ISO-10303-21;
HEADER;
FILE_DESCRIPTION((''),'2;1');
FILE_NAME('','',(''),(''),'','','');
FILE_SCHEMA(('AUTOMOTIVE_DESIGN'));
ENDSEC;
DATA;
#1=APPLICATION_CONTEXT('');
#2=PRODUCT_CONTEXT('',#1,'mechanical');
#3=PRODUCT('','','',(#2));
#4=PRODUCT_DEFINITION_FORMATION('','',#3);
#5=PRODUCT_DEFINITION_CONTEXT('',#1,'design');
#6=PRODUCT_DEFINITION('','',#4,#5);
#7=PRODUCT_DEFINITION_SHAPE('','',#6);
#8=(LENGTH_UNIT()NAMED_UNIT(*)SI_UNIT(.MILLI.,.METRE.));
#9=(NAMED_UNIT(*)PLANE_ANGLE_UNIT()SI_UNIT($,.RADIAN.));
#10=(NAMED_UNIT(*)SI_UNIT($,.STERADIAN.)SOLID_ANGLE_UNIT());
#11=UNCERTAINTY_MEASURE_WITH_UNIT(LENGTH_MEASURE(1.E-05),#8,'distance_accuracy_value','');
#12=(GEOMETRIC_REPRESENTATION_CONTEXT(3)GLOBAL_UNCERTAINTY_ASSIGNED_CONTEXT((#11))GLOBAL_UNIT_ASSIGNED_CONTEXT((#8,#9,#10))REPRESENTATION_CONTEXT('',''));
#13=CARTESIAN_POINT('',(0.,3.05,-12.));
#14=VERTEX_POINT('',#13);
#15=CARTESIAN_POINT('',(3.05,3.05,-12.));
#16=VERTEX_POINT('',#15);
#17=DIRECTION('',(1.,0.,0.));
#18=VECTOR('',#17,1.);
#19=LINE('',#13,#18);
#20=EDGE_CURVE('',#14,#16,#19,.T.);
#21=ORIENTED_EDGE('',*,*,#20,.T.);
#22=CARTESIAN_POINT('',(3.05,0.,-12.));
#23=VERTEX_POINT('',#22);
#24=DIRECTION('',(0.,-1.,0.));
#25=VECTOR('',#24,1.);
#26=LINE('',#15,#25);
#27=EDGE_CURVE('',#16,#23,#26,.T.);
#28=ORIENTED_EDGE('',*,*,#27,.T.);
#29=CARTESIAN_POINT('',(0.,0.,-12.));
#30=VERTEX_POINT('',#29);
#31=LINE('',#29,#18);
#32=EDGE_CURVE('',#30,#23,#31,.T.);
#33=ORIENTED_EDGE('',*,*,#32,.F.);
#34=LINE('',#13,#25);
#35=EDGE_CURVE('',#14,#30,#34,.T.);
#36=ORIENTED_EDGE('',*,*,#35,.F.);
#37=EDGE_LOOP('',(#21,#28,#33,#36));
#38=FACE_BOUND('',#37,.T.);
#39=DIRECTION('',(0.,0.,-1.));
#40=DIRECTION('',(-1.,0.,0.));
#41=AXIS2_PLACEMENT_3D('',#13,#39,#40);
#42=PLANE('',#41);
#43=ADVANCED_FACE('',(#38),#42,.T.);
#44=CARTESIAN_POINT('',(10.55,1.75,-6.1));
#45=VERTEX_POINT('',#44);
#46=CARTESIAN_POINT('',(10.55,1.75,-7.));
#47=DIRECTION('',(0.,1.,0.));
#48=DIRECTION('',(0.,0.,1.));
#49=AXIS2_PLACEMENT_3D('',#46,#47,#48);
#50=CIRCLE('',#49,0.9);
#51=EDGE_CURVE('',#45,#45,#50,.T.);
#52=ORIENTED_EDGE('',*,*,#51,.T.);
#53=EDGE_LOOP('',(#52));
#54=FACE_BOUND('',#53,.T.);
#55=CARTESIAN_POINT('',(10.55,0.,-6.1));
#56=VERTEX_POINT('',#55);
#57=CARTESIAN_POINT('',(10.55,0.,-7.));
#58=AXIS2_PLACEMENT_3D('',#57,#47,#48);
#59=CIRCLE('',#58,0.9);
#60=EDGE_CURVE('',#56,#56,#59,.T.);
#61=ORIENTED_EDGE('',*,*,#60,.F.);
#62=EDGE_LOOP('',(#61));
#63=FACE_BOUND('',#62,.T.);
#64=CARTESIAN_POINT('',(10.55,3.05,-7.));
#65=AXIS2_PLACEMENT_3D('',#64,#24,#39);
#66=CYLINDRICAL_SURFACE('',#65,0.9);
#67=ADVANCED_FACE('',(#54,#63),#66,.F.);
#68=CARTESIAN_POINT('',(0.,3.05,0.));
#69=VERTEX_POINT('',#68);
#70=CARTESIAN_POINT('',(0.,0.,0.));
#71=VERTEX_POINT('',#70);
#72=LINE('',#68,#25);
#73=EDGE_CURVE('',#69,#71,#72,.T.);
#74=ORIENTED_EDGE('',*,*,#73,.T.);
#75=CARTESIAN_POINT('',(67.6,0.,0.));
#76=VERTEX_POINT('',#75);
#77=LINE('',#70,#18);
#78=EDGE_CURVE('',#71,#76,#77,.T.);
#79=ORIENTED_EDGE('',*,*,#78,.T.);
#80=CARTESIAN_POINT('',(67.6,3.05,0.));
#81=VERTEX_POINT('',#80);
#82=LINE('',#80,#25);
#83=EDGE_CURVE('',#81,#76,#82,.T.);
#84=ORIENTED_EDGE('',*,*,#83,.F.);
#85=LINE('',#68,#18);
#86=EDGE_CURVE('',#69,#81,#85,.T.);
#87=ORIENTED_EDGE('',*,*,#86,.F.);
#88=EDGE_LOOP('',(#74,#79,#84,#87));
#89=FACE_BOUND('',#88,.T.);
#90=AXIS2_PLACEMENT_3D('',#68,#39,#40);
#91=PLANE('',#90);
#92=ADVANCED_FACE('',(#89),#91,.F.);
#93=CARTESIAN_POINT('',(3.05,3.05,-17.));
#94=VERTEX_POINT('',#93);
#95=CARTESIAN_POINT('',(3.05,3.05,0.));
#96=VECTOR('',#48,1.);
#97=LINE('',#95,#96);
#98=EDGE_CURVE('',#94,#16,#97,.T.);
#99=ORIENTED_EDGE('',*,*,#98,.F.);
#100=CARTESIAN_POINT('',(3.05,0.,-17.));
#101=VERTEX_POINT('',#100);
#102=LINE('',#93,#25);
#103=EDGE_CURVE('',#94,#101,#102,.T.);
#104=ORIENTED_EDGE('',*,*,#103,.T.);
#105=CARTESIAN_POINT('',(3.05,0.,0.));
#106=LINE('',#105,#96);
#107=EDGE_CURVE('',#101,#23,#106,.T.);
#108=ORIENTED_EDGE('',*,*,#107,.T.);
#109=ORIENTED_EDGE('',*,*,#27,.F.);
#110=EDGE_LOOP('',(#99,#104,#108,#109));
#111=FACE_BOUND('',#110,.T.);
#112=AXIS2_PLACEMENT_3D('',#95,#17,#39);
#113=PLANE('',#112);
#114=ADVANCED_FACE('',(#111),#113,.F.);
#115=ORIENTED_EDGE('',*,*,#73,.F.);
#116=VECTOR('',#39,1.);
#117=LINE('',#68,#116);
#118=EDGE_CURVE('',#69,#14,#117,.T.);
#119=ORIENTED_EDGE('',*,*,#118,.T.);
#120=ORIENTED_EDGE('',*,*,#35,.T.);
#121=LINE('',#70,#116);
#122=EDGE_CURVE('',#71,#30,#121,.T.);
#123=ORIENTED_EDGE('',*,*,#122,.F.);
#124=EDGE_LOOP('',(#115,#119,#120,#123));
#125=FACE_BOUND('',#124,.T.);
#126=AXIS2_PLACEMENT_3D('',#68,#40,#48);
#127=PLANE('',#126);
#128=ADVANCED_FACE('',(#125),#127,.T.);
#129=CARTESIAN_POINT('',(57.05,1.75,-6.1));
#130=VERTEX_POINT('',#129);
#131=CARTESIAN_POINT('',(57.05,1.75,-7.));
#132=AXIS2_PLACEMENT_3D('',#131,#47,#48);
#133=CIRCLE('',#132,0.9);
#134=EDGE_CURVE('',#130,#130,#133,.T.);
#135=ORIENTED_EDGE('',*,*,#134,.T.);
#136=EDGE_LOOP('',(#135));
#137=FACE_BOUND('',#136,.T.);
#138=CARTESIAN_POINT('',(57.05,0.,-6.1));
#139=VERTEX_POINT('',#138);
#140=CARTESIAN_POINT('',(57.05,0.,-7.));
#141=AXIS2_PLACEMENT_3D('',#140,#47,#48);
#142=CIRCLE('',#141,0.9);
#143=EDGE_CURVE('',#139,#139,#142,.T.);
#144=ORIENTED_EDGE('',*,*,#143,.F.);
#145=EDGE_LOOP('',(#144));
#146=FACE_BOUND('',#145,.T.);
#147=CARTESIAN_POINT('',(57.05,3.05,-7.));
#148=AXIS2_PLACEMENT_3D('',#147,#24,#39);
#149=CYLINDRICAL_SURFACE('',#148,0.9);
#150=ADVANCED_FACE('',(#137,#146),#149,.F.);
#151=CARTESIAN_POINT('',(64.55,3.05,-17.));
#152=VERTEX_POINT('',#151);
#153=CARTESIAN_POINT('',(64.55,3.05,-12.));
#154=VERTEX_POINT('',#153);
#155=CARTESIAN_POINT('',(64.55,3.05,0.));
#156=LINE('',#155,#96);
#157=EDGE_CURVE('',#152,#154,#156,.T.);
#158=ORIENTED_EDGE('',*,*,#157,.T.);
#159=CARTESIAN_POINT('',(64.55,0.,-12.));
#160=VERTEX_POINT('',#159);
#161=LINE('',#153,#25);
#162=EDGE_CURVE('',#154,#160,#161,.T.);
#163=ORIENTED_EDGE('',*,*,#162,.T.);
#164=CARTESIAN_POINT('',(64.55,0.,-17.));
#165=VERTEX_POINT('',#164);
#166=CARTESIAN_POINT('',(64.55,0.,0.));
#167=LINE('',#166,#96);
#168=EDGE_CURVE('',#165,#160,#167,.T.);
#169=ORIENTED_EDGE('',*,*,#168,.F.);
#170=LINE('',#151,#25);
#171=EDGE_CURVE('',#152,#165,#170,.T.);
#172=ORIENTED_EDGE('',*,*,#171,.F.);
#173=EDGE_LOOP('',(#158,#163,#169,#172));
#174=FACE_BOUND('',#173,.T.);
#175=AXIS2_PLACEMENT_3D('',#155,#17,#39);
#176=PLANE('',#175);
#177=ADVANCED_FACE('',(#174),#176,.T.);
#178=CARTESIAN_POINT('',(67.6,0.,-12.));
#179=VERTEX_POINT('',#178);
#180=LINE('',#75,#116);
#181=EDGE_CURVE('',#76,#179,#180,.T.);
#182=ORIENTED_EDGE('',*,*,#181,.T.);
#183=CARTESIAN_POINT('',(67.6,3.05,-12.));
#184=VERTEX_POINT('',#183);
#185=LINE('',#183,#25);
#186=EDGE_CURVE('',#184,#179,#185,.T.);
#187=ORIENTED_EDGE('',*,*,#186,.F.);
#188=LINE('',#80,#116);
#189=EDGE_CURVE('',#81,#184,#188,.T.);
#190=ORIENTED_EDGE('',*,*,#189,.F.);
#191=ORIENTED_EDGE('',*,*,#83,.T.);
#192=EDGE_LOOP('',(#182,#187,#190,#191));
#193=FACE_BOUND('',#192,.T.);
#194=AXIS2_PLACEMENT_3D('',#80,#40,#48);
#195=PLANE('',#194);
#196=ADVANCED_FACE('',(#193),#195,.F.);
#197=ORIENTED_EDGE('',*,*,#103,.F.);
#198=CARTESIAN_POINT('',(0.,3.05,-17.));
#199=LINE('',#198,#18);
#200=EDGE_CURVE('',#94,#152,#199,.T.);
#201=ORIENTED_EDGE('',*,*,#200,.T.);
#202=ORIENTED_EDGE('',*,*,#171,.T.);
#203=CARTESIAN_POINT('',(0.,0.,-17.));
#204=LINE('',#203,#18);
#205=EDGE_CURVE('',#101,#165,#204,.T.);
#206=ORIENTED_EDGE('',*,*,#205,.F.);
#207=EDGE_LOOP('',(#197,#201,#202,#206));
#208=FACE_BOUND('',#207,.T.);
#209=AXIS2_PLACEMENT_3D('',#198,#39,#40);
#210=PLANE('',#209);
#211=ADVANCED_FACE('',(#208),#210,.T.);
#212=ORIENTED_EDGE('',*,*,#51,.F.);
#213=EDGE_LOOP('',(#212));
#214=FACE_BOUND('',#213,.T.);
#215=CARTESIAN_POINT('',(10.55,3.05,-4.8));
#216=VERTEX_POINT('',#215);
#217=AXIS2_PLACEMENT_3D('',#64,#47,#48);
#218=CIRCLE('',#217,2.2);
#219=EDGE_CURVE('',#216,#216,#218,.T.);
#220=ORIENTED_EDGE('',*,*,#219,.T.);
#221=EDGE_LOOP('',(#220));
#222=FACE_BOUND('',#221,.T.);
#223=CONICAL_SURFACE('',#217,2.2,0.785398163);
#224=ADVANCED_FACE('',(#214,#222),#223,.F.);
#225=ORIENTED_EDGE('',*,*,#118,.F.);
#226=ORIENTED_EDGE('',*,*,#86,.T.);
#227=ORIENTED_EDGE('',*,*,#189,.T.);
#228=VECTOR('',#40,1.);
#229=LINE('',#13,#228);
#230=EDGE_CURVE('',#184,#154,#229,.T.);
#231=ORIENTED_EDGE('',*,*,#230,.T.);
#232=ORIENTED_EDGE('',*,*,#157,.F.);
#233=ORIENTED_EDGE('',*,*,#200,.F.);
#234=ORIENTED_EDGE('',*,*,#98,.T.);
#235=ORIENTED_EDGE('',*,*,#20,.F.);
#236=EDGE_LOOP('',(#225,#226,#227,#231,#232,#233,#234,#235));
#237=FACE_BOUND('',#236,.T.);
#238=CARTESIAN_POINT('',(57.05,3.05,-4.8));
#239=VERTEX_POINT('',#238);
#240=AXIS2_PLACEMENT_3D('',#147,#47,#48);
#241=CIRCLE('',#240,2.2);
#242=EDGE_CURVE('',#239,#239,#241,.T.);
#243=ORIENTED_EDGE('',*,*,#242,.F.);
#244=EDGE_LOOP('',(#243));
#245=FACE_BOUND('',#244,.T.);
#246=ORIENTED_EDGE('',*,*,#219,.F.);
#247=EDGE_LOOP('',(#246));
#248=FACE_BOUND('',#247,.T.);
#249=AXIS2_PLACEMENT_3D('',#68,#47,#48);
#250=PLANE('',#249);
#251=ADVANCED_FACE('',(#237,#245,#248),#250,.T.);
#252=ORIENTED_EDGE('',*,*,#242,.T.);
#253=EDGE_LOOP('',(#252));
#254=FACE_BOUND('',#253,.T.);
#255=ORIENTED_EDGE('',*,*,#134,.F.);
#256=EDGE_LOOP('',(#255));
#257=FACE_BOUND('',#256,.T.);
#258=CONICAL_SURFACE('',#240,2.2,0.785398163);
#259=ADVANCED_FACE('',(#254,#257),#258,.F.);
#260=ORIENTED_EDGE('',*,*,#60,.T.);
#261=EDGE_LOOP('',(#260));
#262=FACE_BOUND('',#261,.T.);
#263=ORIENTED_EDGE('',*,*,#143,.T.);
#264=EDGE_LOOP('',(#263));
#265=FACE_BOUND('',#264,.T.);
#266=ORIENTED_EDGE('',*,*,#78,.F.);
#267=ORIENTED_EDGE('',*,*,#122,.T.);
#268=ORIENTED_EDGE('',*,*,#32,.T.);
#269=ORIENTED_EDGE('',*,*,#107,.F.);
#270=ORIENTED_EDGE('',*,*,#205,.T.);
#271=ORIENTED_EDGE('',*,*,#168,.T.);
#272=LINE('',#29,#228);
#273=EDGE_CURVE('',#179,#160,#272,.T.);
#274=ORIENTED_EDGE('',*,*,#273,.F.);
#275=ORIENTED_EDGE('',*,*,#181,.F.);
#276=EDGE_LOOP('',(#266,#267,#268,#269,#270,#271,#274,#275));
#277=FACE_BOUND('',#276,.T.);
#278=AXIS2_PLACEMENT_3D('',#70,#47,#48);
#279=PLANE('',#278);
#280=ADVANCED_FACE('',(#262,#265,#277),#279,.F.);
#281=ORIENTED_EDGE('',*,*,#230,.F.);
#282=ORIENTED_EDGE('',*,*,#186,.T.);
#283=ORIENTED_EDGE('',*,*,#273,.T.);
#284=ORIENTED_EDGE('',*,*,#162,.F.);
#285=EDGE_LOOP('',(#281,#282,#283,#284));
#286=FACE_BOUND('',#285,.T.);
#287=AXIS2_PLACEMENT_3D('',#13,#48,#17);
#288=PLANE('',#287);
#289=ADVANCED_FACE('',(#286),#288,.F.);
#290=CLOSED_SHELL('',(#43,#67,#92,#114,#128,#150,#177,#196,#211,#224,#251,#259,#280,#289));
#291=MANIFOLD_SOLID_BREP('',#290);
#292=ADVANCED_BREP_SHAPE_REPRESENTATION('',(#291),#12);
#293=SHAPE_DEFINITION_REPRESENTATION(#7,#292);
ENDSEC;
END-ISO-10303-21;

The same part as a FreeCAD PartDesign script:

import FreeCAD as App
import Part
import Sketcher
Q = App.Units.Quantity

doc = App.newDocument("Part")
body = doc.addObject("PartDesign::Body", "Body")

sketch1 = body.newObject("Sketcher::SketchObject", "Sketch")
sketch1.AttachmentSupport = (doc.getObject("XZ_Plane"), [""])
sketch1.MapMode = "FlatFace"
sketch1.addGeometry(Part.LineSegment(App.Vector(3.05, -17, 0), App.Vector(3.05, -12, 0)), False)
sketch1.addGeometry(Part.LineSegment(App.Vector(3.05, -12, 0), App.Vector(0, -12, 0)), False)
sketch1.addGeometry(Part.LineSegment(App.Vector(0, -12, 0), App.Vector(0, 0, 0)), False)
sketch1.addGeometry(Part.LineSegment(App.Vector(0, 0, 0), App.Vector(67.6, 0, 0)), False)
sketch1.addGeometry(Part.LineSegment(App.Vector(67.6, 0, 0), App.Vector(67.6, -12, 0)), False)
sketch1.addGeometry(Part.LineSegment(App.Vector(67.6, -12, 0), App.Vector(64.55, -12, 0)), False)
sketch1.addGeometry(Part.LineSegment(App.Vector(64.55, -12, 0), App.Vector(64.55, -17, 0)), False)
sketch1.addGeometry(Part.LineSegment(App.Vector(64.55, -17, 0), App.Vector(3.05, -17, 0)), False)
sketch1.addGeometry(Part.Circle(App.Vector(10.55, -7, 0), App.Vector(0, 0, 1), 0.9), False)
sketch1.addGeometry(Part.Circle(App.Vector(57.05, -7, 0), App.Vector(0, 0, 1), 0.9), False)
sketch1.addConstraint(Sketcher.Constraint("Coincident", 0, 2, 1, 1))
sketch1.addConstraint(Sketcher.Constraint("Coincident", 1, 2, 2, 1))
sketch1.addConstraint(Sketcher.Constraint("Coincident", 2, 2, 3, 1))
sketch1.addConstraint(Sketcher.Constraint("Coincident", 3, 2, 4, 1))
sketch1.addConstraint(Sketcher.Constraint("Coincident", 4, 2, 5, 1))
sketch1.addConstraint(Sketcher.Constraint("Coincident", 5, 2, 6, 1))
sketch1.addConstraint(Sketcher.Constraint("Coincident", 6, 2, 7, 1))
sketch1.addConstraint(Sketcher.Constraint("Coincident", 7, 2, 0, 1))
sketch1.addConstraint(Sketcher.Constraint("Vertical", 0))
sketch1.addConstraint(Sketcher.Constraint("Horizontal", 1))
sketch1.addConstraint(Sketcher.Constraint("Vertical", 2))
sketch1.addConstraint(Sketcher.Constraint("Horizontal", 3))
sketch1.addConstraint(Sketcher.Constraint("Vertical", 4))
sketch1.addConstraint(Sketcher.Constraint("Horizontal", 5))
sketch1.addConstraint(Sketcher.Constraint("Vertical", 6))
sketch1.addConstraint(Sketcher.Constraint("Horizontal", 7))
sketch1.addConstraint(Sketcher.Constraint("Coincident", 2, 2, -1, 1))
sketch1.addConstraint(Sketcher.Constraint("Equal", 8, 9))
sketch1.addConstraint(Sketcher.Constraint("Horizontal", 8, 3, 9, 3))
sketch1.addConstraint(Sketcher.Constraint("Horizontal", 1, 2, 4, 2))
sketch1.addConstraint(Sketcher.Constraint("Equal", 1, 5))
sketch1.addConstraint(Sketcher.Constraint("Diameter", 8, Q("1.8 mm")))
sketch1.addConstraint(Sketcher.Constraint("DistanceY", 0, 1, 0, 2, Q("5 mm")))
sketch1.addConstraint(Sketcher.Constraint("DistanceY", 2, 1, 2, 2, Q("12 mm")))
sketch1.addConstraint(Sketcher.Constraint("DistanceX", 3, 1, 3, 2, Q("67.6 mm")))
sketch1.addConstraint(Sketcher.Constraint("DistanceX", 7, 2, 7, 1, Q("61.5 mm")))
sketch1.addConstraint(Sketcher.Constraint("DistanceY", 8, 3, -1, 1, Q("7 mm")))
sketch1.addConstraint(Sketcher.Constraint("DistanceX", 0, 2, 9, 3, Q("54 mm")))
sketch1.addConstraint(Sketcher.Constraint("DistanceX", 8, 3, 5, 2, Q("54 mm")))
pad1 = body.newObject("PartDesign::Pad", "Pad")
pad1.Profile = sketch1
pad1.Length = 3.05
pad1.Reversed = True

sketch2 = body.newObject("Sketcher::SketchObject", "Sketch001")
sketch2.AttachmentSupport = (doc.getObject("XZ_Plane"), [""])
sketch2.MapMode = "FlatFace"
sketch2.AttachmentOffset = App.Placement(App.Vector(0, 0, -3.05), App.Rotation())
sketch2.addGeometry(Part.Circle(App.Vector(10.55, -7, 0), App.Vector(0, 0, 1), 0.9), False)
sketch2.addConstraint(Sketcher.Constraint("Diameter", 0, Q("1.8 mm")))
sketch2.addConstraint(Sketcher.Constraint("DistanceY", 0, 3, -1, 1, Q("7 mm")))
sketch2.addConstraint(Sketcher.Constraint("DistanceX", -1, 1, 0, 3, Q("10.55 mm")))
doc.recompute()
hole = body.newObject("PartDesign::Hole", "Hole")
hole.Profile = sketch2
hole.ThreadType = "None"
hole.Diameter = 1.8
hole.DepthType = "ThroughAll"
hole.HoleCutType = "Countersink"
hole.HoleCutDiameter = 4.4
hole.HoleCutCountersinkAngle = 90
hole.Reversed = True

sketch3 = body.newObject("Sketcher::SketchObject", "Sketch002")
sketch3.AttachmentSupport = (doc.getObject("XZ_Plane"), [""])
sketch3.MapMode = "FlatFace"
sketch3.AttachmentOffset = App.Placement(App.Vector(0, 0, -3.05), App.Rotation())
sketch3.addGeometry(Part.Circle(App.Vector(57.05, -7, 0), App.Vector(0, 0, 1), 0.9), False)
sketch3.addConstraint(Sketcher.Constraint("Diameter", 0, Q("1.8 mm")))
sketch3.addConstraint(Sketcher.Constraint("DistanceY", 0, 3, -1, 1, Q("7 mm")))
sketch3.addConstraint(Sketcher.Constraint("DistanceX", -1, 1, 0, 3, Q("57.05 mm")))
doc.recompute()
hole2 = body.newObject("PartDesign::Hole", "Hole001")
hole2.Profile = sketch3
hole2.ThreadType = "None"
hole2.Diameter = 1.8
hole2.DepthType = "ThroughAll"
hole2.HoleCutType = "Countersink"
hole2.HoleCutDiameter = 4.4
hole2.HoleCutCountersinkAngle = 90
hole2.Reversed = True

doc.recompute()
